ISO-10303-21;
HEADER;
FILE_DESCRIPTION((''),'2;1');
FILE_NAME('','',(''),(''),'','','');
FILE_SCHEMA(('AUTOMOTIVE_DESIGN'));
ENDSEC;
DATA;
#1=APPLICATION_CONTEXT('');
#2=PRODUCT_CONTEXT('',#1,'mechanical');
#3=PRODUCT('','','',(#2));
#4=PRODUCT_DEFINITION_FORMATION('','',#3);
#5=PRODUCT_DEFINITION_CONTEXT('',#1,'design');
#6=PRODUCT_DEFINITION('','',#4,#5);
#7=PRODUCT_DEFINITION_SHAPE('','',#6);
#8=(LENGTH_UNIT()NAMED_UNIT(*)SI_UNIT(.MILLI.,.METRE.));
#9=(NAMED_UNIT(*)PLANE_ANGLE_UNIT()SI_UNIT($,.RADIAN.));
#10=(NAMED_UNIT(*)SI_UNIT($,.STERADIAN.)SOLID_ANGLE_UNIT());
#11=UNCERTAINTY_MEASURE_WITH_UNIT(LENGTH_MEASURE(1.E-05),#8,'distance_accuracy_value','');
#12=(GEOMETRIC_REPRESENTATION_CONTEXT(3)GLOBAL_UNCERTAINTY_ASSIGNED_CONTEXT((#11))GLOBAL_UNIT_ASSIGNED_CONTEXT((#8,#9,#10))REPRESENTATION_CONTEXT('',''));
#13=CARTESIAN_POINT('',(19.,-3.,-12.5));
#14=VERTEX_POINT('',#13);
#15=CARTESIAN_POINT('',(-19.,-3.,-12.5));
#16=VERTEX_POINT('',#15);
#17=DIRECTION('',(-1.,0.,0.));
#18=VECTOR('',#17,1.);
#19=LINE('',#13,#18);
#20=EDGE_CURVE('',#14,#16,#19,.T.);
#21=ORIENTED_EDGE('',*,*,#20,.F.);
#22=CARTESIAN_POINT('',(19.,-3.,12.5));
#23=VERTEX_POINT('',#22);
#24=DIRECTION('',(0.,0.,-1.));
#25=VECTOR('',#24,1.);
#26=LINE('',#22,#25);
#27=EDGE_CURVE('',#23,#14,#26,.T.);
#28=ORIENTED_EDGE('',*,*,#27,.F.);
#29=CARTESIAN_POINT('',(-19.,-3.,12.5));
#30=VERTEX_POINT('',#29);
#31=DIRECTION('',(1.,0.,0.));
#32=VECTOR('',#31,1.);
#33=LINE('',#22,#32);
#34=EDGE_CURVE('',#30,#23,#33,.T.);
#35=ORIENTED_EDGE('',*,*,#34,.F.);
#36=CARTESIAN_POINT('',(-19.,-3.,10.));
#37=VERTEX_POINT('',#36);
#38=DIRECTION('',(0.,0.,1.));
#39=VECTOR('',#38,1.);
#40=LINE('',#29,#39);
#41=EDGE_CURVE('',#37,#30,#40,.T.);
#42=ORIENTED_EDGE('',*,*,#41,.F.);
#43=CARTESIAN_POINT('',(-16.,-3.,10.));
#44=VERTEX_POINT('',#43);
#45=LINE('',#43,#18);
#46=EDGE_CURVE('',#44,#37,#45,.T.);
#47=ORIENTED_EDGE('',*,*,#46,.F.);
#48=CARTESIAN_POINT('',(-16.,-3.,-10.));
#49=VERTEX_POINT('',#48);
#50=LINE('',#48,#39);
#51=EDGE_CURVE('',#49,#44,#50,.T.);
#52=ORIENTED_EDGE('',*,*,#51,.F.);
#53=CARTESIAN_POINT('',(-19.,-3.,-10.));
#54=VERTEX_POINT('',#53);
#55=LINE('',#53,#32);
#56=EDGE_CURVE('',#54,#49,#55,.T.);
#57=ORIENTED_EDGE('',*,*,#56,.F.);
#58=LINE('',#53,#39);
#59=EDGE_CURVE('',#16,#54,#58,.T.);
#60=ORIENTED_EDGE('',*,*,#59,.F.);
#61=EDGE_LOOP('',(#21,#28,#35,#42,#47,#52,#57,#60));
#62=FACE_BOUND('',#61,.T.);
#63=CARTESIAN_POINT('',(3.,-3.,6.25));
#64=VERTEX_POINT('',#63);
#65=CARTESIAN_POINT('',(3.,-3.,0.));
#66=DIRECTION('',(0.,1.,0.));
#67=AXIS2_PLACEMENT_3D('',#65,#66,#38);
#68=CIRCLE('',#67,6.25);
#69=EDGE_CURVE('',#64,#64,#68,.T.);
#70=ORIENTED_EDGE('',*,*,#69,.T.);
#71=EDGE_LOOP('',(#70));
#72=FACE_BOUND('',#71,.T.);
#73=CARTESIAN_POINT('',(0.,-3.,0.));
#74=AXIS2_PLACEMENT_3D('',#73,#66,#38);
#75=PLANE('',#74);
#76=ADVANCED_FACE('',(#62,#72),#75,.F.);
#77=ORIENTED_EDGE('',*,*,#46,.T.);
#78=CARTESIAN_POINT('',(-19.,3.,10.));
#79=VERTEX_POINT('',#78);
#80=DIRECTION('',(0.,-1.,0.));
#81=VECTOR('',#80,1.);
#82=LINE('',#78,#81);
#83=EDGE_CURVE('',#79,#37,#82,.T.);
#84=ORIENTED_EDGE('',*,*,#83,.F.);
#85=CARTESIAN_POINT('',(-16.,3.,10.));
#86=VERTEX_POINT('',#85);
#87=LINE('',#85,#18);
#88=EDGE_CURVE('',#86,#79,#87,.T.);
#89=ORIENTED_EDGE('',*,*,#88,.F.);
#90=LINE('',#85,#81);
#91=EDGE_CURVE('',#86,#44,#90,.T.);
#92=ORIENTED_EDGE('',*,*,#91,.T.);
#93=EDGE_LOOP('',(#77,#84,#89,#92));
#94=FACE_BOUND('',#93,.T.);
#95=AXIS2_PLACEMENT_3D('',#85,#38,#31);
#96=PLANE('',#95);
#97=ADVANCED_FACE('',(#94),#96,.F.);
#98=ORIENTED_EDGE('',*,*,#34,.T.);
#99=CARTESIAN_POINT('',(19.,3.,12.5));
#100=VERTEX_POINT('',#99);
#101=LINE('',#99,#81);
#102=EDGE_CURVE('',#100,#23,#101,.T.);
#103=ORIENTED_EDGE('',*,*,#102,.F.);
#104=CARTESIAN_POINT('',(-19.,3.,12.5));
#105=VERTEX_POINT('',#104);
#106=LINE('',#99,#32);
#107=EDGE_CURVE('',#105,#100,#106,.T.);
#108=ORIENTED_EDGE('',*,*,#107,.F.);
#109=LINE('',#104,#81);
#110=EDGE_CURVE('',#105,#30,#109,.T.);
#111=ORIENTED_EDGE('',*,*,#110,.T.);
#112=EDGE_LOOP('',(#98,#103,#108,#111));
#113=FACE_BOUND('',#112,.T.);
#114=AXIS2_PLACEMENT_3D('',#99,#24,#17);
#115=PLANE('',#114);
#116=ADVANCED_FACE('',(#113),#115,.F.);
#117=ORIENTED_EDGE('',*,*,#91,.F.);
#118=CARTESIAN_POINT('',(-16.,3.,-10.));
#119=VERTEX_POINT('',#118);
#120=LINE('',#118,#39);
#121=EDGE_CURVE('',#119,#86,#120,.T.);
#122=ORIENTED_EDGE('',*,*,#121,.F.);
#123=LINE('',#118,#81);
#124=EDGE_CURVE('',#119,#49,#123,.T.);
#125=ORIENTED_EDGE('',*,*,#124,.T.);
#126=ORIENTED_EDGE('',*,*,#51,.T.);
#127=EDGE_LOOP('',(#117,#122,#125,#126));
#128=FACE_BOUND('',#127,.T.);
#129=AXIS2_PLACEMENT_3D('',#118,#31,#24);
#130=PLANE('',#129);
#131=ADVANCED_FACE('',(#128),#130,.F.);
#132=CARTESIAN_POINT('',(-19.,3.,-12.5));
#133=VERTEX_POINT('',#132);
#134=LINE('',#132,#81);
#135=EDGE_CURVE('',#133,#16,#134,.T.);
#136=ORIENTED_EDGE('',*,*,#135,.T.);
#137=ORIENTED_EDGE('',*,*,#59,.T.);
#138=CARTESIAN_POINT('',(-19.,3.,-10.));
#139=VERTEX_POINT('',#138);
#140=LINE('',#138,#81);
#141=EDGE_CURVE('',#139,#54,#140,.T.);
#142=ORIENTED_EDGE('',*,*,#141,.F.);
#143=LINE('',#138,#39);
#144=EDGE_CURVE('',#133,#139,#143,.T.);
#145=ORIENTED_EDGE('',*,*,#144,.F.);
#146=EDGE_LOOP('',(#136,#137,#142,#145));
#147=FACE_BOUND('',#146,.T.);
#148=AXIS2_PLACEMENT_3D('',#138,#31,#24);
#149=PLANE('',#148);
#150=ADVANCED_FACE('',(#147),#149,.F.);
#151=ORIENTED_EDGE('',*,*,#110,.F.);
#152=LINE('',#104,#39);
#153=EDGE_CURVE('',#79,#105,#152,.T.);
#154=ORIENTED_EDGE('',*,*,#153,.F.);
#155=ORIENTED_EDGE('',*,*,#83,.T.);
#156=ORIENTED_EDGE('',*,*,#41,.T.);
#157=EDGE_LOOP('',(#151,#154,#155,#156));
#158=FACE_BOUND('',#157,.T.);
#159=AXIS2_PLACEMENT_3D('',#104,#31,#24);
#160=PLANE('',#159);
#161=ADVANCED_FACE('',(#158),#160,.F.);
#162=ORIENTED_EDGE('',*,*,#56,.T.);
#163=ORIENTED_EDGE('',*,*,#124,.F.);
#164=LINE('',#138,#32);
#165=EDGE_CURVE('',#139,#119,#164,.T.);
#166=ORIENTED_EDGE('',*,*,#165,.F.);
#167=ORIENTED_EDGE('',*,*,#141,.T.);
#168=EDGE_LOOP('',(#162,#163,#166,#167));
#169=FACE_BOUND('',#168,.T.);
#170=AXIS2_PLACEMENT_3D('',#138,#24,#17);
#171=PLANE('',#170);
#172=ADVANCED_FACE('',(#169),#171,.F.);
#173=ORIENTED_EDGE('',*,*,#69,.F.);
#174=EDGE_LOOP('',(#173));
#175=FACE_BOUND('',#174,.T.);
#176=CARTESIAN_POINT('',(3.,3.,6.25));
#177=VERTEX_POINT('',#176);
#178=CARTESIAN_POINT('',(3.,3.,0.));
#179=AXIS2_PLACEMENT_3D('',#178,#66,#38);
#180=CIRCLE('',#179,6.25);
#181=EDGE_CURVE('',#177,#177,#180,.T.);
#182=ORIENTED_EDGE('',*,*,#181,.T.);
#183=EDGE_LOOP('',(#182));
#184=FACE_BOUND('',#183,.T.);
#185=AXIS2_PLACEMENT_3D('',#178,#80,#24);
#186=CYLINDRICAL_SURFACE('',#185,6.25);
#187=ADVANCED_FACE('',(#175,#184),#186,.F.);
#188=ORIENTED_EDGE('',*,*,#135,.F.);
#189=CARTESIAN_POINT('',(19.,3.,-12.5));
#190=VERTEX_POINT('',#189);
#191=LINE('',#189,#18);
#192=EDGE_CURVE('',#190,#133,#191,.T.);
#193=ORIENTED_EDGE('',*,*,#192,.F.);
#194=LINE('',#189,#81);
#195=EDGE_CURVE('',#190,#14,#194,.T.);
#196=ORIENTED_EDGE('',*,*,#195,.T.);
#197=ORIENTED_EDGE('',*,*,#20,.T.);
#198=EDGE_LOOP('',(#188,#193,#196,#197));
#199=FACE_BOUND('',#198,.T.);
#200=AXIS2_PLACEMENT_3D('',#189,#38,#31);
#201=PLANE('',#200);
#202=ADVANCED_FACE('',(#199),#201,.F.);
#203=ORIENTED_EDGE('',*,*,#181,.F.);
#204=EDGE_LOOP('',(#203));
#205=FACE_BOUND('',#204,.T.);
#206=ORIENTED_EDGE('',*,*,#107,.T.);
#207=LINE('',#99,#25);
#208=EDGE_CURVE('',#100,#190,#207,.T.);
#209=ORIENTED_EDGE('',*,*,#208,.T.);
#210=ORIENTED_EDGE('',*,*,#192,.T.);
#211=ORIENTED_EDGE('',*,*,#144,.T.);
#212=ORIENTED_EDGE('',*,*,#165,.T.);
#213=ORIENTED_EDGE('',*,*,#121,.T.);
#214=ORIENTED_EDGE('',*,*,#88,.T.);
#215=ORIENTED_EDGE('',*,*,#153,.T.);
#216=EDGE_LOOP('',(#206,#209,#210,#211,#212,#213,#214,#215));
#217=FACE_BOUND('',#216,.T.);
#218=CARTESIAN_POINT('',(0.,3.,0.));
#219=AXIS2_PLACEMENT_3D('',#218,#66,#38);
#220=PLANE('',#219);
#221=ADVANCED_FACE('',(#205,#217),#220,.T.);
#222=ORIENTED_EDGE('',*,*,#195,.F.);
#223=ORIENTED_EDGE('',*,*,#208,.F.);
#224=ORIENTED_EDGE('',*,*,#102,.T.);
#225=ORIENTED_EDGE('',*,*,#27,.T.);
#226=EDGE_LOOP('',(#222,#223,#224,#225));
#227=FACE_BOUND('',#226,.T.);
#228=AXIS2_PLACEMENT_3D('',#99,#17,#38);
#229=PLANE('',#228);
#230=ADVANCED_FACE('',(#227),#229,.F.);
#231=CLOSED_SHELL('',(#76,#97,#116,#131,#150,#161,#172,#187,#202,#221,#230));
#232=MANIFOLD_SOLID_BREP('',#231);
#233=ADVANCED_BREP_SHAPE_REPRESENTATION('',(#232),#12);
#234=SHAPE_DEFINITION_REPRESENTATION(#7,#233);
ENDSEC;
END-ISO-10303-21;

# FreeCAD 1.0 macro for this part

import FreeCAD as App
import Part
import Sketcher
Q = App.Units.Quantity


def add_polygon(sketch, points):
    """Adds a closed chain of lines whose ends are joined by coincident constraints."""
    first, n = sketch.GeometryCount, len(points)
    for a, b in zip(points, points[1:] + points[:1]):
        sketch.addGeometry(Part.LineSegment(App.Vector(*a, 0), App.Vector(*b, 0)), False)
    for i in range(n):
        sketch.addConstraint(Sketcher.Constraint("Coincident", first + i, 2, first + (i + 1) % n, 1))

doc = App.newDocument("Part")
body = doc.addObject("PartDesign::Body", "Body")

# Sketch on XZ plane
sketch1 = body.newObject("Sketcher::SketchObject", "Sketch")
sketch1.AttachmentSupport = (doc.getObject("XZ_Plane"), [""])
sketch1.MapMode = "FlatFace"
add_polygon(sketch1, [(-19, -10), (-16, -10), (-16, 10), (-19, 10), (-19, 12.5), (19, 12.5), (19, -12.5), (-19, -12.5)])  # lines 0-7
sketch1.addGeometry(Part.Circle(App.Vector(3, 0, 0), App.Vector(0, 0, 1), 6.25), False)  # 8
sketch1.addConstraint([
    Sketcher.Constraint("Horizontal", 0),
    Sketcher.Constraint("Vertical", 1),
    Sketcher.Constraint("Horizontal", 2),
    Sketcher.Constraint("Vertical", 3),
    Sketcher.Constraint("Horizontal", 4),
    Sketcher.Constraint("Vertical", 5),
    Sketcher.Constraint("Horizontal", 6),
    Sketcher.Constraint("Vertical", 7),
    Sketcher.Constraint("Symmetric", 3, 2, 5, 2, -1, 1),
    Sketcher.Constraint("Symmetric", 2, 2, 7, 2, -1),
    Sketcher.Constraint("PointOnObject", 8, 3, -1),
    Sketcher.Constraint("Diameter", 8, Q("12.5 mm")),
    Sketcher.Constraint("DistanceX", 0, 1, 0, 2, Q("3 mm")),
    Sketcher.Constraint("DistanceX", 4, 1, 4, 2, Q("38 mm")),
    Sketcher.Constraint("DistanceY", 1, 1, 1, 2, Q("20 mm")),
    Sketcher.Constraint("DistanceY", 5, 2, 5, 1, Q("25 mm")),
    Sketcher.Constraint("DistanceX", -1, 1, 8, 3, Q("3 mm")),
])
pad1 = body.newObject("PartDesign::Pad", "Pad")
pad1.Profile = sketch1
pad1.Length = 6
pad1.Midplane = True

doc.recompute()
